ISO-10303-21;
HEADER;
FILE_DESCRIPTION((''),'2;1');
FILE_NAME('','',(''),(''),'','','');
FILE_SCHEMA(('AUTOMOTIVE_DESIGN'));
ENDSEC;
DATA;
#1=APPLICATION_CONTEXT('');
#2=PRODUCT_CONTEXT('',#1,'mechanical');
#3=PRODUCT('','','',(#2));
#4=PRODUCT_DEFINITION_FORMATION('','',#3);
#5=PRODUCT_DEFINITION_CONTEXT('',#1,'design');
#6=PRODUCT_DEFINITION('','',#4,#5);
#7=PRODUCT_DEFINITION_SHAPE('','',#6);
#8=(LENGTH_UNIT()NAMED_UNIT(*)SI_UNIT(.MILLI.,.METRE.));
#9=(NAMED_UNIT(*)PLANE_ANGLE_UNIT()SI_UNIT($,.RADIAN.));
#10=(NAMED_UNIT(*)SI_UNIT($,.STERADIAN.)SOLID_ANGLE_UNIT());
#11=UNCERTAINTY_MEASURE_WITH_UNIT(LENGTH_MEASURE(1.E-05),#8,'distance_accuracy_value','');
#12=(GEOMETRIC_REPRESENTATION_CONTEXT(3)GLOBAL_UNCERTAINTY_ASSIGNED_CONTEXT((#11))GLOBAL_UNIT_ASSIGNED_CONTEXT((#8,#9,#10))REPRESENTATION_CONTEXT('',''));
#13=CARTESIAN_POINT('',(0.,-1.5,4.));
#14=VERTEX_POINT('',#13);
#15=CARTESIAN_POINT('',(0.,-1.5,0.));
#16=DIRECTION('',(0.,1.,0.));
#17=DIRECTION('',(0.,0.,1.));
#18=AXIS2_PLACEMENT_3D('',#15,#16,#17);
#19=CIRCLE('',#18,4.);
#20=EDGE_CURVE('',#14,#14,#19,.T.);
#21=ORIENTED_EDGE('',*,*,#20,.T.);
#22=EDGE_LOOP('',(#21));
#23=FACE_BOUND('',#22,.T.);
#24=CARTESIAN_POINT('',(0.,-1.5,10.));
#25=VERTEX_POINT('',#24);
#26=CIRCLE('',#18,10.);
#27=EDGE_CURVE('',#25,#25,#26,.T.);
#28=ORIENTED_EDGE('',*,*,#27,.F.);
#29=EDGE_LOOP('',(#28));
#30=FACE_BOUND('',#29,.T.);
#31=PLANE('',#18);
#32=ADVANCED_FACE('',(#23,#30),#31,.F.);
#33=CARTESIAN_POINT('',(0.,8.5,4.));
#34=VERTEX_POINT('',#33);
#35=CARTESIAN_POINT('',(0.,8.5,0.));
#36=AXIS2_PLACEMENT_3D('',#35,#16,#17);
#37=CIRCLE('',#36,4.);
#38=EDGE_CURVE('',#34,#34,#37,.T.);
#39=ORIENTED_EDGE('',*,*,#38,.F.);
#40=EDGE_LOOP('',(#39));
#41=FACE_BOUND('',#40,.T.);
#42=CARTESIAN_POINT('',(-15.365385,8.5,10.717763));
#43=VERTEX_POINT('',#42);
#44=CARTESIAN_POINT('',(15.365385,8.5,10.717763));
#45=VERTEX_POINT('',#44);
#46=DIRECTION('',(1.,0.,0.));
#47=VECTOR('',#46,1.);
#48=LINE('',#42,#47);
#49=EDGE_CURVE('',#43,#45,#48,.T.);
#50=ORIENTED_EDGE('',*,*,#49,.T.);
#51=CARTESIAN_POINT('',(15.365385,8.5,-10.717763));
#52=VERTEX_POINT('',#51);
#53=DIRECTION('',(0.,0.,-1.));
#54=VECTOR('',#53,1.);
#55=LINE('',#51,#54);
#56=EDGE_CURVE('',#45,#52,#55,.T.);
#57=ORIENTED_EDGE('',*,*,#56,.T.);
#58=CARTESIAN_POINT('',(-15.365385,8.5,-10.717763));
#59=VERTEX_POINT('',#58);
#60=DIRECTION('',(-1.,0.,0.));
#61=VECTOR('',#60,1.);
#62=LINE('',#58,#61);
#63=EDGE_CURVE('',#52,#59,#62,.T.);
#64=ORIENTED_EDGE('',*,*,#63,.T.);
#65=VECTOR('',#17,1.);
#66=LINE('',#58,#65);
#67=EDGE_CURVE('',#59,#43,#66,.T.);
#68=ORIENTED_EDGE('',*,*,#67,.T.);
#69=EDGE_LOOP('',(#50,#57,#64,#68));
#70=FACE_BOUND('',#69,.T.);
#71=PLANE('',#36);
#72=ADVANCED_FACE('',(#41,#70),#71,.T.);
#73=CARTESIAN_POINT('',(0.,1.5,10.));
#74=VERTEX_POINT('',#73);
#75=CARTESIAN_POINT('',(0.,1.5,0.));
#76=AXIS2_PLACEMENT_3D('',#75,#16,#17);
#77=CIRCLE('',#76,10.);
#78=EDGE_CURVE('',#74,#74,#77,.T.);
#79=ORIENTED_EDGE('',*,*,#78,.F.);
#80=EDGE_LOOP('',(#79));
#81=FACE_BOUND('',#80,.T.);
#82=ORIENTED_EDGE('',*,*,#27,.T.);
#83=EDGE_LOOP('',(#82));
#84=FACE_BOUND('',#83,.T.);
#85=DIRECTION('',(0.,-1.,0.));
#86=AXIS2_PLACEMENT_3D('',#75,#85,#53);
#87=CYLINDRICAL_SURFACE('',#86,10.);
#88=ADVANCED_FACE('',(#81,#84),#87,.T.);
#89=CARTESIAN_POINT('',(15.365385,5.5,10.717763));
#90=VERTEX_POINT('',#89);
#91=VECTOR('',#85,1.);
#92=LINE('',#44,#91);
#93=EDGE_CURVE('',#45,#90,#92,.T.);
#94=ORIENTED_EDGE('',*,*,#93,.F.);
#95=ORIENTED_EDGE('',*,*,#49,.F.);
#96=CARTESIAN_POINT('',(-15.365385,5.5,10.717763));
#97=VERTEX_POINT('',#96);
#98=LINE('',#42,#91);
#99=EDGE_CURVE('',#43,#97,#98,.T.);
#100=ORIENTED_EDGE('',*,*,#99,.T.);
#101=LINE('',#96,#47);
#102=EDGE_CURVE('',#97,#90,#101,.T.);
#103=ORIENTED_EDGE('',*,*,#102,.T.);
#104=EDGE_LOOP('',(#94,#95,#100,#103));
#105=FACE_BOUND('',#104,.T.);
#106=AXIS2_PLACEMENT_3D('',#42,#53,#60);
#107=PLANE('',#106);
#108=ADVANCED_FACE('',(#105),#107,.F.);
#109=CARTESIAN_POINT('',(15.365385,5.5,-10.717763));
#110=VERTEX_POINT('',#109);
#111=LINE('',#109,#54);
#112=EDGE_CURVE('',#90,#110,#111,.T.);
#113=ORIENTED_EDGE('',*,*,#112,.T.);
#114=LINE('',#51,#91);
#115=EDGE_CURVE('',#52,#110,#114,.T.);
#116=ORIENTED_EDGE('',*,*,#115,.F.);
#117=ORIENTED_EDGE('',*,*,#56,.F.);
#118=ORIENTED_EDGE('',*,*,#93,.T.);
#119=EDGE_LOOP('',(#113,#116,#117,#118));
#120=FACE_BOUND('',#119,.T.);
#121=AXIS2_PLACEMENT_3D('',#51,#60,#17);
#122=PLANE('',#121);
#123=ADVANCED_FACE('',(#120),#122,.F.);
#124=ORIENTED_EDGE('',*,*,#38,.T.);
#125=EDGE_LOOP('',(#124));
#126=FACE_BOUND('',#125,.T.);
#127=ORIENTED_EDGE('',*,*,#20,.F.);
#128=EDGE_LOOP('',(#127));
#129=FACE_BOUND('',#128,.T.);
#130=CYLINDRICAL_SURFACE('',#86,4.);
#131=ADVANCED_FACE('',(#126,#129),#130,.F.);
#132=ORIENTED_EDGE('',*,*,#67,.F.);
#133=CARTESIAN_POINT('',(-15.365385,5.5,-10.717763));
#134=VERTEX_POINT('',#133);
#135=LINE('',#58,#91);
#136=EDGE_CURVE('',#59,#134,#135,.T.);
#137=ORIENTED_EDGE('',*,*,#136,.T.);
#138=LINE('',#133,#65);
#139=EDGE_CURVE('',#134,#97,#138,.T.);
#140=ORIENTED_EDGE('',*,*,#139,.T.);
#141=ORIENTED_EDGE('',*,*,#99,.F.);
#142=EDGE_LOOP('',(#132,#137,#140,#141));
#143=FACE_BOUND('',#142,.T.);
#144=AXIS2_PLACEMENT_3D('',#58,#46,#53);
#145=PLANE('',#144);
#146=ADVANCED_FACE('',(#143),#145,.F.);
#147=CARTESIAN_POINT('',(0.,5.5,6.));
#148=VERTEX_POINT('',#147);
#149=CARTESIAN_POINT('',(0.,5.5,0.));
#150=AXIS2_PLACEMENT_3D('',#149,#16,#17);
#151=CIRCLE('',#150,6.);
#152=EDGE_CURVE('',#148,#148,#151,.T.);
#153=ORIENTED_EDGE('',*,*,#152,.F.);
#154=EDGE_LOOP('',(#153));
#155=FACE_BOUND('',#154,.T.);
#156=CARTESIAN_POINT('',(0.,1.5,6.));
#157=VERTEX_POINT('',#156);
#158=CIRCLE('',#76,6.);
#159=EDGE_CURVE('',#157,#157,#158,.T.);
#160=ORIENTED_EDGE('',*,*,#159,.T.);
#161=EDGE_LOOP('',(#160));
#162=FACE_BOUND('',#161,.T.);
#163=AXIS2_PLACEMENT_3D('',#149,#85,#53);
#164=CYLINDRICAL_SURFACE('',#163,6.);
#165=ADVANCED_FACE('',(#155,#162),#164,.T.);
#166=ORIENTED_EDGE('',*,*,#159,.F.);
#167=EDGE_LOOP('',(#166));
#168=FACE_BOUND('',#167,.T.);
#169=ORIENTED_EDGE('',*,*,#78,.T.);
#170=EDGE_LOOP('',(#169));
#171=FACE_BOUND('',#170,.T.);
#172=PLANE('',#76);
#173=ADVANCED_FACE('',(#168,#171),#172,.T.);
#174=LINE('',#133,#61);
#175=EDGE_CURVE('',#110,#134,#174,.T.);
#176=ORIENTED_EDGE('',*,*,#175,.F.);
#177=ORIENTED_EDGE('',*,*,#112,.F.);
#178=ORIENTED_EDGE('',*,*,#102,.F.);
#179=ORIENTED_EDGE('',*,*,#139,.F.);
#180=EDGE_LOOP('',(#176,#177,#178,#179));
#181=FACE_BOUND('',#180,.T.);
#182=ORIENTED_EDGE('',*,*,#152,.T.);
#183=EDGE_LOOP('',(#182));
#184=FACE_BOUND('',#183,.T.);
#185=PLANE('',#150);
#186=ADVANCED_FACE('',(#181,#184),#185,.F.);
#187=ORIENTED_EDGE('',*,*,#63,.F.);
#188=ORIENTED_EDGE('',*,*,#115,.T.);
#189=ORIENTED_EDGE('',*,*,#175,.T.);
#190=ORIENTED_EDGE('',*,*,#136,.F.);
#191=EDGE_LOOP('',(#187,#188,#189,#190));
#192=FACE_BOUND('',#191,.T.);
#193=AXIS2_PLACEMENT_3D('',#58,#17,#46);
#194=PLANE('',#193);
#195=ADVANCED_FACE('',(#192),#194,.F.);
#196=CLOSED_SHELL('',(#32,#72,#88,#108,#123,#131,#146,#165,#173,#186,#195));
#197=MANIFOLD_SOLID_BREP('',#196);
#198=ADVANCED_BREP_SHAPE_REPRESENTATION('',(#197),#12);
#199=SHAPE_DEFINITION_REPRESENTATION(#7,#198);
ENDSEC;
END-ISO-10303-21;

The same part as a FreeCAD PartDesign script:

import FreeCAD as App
import Part
import Sketcher


def add_polygon(sketch, points):
    """Adds a closed chain of lines whose ends are joined by coincident constraints."""
    first, n = sketch.GeometryCount, len(points)
    for a, b in zip(points, points[1:] + points[:1]):
        sketch.addGeometry(Part.LineSegment(App.Vector(*a, 0), App.Vector(*b, 0)), False)
    for i in range(n):
        sketch.addConstraint(Sketcher.Constraint("Coincident", first + i, 2, first + (i + 1) % n, 1))

doc = App.newDocument("Part")
body = doc.addObject("PartDesign::Body", "Body")

sketch1 = doc.addObject("Sketcher::SketchObject", "Sketch")
body.addObject(sketch1)
sketch1.AttachmentSupport = (doc.XZ_Plane, [""])
sketch1.MapMode = "FlatFace"
sketch1.addGeometry(Part.Circle(App.Vector(0, 0, 0), App.Vector(0, 0, 1), 10), False)
sketch1.addGeometry(Part.Circle(App.Vector(0, 0, 0), App.Vector(0, 0, 1), 4), False)
sketch1.addConstraint(Sketcher.Constraint("Coincident", 0, 3, -1, 1))
sketch1.addConstraint(Sketcher.Constraint("Coincident", 1, 3, -1, 1))
sketch1.addConstraint(Sketcher.Constraint("Diameter", 0, 20.0))
sketch1.addConstraint(Sketcher.Constraint("Diameter", 1, 8.0))
pad1 = doc.addObject("PartDesign::Pad", "Pad")
body.addObject(pad1)
pad1.Profile = sketch1
pad1.Length = 3
pad1.Midplane = True

sketch2 = doc.addObject("Sketcher::SketchObject", "Sketch001")
body.addObject(sketch2)
sketch2.AttachmentSupport = (doc.XZ_Plane, [""])
sketch2.MapMode = "FlatFace"
sketch2.AttachmentOffset = App.Placement(App.Vector(0, 0, -1.5), App.Rotation())
sketch2.addGeometry(Part.Circle(App.Vector(0, 0, 0), App.Vector(0, 0, 1), 6), False)
sketch2.addGeometry(Part.Circle(App.Vector(0, 0, 0), App.Vector(0, 0, 1), 4), False)
sketch2.addConstraint(Sketcher.Constraint("Coincident", 0, 3, -1, 1))
sketch2.addConstraint(Sketcher.Constraint("Coincident", 1, 3, -1, 1))
sketch2.addConstraint(Sketcher.Constraint("Diameter", 0, 12.0))
sketch2.addConstraint(Sketcher.Constraint("Diameter", 1, 8.0))
pad2 = doc.addObject("PartDesign::Pad", "Pad001")
body.addObject(pad2)
pad2.Profile = sketch2
pad2.Length = 4
pad2.Reversed = True

sketch3 = doc.addObject("Sketcher::SketchObject", "Sketch002")
body.addObject(sketch3)
sketch3.AttachmentSupport = (doc.XZ_Plane, [""])
sketch3.MapMode = "FlatFace"
sketch3.AttachmentOffset = App.Placement(App.Vector(0, 0, -5.5), App.Rotation())
add_polygon(sketch3, [(-15.4, -10.7), (-15.4, 10.7), (15.4, 10.7), (15.4, -10.7)])
sketch3.addGeometry(Part.Circle(App.Vector(0, 0, 0), App.Vector(0, 0, 1), 4), False)
sketch3.addConstraint(Sketcher.Constraint("Vertical", 0))
sketch3.addConstraint(Sketcher.Constraint("Horizontal", 1))
sketch3.addConstraint(Sketcher.Constraint("Vertical", 2))
sketch3.addConstraint(Sketcher.Constraint("Horizontal", 3))
sketch3.addConstraint(Sketcher.Constraint("Coincident", 4, 3, -1, 1))
sketch3.addConstraint(Sketcher.Constraint("Symmetric", 0, 2, 2, 2, -1, 1))
sketch3.addConstraint(Sketcher.Constraint("Diameter", 4, 8.0))
sketch3.addConstraint(Sketcher.Constraint("DistanceX", 1, 1, 1, 2, 30.73077))
sketch3.addConstraint(Sketcher.Constraint("DistanceY", 0, 1, 0, 2, 21.435526))
pad3 = doc.addObject("PartDesign::Pad", "Pad002")
body.addObject(pad3)
pad3.Profile = sketch3
pad3.Length = 3
pad3.Reversed = True

doc.recompute()
